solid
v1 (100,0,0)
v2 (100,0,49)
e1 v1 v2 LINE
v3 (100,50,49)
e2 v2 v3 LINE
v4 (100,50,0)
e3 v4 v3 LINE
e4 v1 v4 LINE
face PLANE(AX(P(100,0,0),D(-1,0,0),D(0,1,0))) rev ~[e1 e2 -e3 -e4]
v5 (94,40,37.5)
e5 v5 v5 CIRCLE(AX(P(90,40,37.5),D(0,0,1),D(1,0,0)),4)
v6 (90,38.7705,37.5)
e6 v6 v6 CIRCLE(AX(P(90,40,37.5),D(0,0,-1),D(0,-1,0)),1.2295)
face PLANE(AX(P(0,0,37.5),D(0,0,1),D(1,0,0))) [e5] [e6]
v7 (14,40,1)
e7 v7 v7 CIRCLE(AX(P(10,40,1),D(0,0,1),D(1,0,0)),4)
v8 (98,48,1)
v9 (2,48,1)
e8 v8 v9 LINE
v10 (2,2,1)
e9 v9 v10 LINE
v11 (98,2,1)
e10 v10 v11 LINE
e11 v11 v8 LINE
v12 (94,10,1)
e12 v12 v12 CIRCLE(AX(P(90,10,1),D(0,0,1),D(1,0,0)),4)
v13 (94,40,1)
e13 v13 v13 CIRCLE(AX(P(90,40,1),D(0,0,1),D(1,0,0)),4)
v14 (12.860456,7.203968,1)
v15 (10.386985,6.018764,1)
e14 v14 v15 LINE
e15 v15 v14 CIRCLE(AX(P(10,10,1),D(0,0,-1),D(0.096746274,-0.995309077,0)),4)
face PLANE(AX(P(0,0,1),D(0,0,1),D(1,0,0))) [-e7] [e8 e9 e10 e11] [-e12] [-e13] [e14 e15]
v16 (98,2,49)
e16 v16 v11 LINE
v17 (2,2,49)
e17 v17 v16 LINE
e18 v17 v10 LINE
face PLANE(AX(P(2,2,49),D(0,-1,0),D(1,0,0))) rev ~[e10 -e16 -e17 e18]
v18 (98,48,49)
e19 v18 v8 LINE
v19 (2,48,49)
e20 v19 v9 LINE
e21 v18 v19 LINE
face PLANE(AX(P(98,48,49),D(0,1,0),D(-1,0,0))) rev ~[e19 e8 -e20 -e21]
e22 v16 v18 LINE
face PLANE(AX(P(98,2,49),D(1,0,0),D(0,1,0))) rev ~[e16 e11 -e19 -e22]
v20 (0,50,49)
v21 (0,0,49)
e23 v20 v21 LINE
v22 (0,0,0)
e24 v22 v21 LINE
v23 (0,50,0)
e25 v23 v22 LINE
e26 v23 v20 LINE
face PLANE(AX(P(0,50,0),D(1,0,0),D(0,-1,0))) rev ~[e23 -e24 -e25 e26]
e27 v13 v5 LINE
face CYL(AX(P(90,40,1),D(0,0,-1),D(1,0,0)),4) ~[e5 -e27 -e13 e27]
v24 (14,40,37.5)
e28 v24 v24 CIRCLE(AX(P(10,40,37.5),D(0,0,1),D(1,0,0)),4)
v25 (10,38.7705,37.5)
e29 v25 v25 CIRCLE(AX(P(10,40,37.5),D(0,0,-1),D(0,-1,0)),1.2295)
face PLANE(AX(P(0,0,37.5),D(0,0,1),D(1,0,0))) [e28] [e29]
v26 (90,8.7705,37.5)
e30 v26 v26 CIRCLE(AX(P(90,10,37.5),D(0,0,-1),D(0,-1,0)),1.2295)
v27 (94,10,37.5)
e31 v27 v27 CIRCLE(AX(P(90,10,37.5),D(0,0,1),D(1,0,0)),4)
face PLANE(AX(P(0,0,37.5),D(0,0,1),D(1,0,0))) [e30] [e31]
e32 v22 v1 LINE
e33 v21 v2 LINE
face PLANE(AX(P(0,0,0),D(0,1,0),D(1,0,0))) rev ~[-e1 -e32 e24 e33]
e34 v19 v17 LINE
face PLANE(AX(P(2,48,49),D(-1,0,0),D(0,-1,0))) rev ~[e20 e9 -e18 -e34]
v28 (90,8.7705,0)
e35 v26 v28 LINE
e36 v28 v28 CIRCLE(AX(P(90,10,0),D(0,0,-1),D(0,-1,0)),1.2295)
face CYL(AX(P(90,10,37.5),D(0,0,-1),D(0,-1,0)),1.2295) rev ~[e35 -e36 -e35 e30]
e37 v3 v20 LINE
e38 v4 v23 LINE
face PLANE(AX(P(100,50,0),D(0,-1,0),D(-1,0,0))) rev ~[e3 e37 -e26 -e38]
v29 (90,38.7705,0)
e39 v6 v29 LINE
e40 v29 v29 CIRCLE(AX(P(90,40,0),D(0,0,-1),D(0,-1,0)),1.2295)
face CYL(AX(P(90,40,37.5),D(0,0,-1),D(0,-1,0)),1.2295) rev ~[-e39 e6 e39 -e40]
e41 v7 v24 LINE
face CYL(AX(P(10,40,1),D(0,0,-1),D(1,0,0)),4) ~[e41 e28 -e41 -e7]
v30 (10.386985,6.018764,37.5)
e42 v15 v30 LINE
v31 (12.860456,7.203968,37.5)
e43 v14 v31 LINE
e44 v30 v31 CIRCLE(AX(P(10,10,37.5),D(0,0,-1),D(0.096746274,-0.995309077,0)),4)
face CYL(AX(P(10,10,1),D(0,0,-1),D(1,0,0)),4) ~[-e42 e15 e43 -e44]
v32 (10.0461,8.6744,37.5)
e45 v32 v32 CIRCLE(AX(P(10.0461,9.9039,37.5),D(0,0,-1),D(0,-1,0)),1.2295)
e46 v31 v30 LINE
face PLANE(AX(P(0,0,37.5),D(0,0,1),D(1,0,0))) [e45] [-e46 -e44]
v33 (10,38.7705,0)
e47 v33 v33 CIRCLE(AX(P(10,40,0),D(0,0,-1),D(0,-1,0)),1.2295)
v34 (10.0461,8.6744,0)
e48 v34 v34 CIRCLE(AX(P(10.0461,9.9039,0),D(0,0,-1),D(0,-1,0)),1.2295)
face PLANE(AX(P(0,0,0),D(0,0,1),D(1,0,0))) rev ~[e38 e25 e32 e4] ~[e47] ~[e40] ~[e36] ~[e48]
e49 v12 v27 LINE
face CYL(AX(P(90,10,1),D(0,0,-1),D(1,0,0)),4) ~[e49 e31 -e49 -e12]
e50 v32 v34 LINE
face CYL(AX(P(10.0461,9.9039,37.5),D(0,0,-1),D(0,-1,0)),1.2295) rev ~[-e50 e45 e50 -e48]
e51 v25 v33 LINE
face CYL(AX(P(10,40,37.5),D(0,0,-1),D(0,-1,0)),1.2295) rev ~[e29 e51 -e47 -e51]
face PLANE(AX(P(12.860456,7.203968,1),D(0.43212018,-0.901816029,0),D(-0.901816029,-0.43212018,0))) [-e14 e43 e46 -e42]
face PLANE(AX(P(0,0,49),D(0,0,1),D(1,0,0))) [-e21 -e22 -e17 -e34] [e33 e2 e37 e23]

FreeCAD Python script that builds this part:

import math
import FreeCAD as App
import Part
import Sketcher

V = App.Vector


def add_polygon(sketch, points):
    """Adds a closed chain of lines whose ends are joined by coincident constraints."""
    first, n = sketch.GeometryCount, len(points)
    for a, b in zip(points, points[1:] + points[:1]):
        sketch.addGeometry(Part.LineSegment(App.Vector(*a, 0), App.Vector(*b, 0)), False)
    for i in range(n):
        sketch.addConstraint(Sketcher.Constraint("Coincident", first + i, 2, first + (i + 1) % n, 1))

doc = App.newDocument("Part")
body = doc.addObject("PartDesign::Body", "Body")

# Sketch on XY plane
sketch1 = body.newObject("Sketcher::SketchObject", "Sketch")
sketch1.AttachmentSupport = (doc.getObject("XY_Plane"), [""])
sketch1.MapMode = "FlatFace"
add_polygon(sketch1, [(0, 50), (0, 0), (100, 0), (100, 50)])  # lines 0-3
sketch1.addConstraint([
    Sketcher.Constraint("Vertical", 0),
    Sketcher.Constraint("Horizontal", 1),
    Sketcher.Constraint("Vertical", 2),
    Sketcher.Constraint("Horizontal", 3),
    Sketcher.Constraint("Coincident", 0, 2, -1, 1),
    Sketcher.Constraint("DistanceX", 1, 1, 1, 2, 100.0),
    Sketcher.Constraint("DistanceY", 0, 2, 0, 1, 50.0),
])
pad1 = body.newObject("PartDesign::Pad", "Pad")
pad1.Profile = sketch1
pad1.Length = 49

# Sketch on XY plane
sketch2 = body.newObject("Sketcher::SketchObject", "Sketch001")
sketch2.AttachmentSupport = (doc.getObject("XY_Plane"), [""])
sketch2.MapMode = "FlatFace"
sketch2.AttachmentOffset = App.Placement(V(0, 0, 49), App.Rotation())
add_polygon(sketch2, [(2, 48), (2, 2), (98, 2), (98, 48)])  # lines 0-3
sketch2.addConstraint([
    Sketcher.Constraint("Vertical", 0),
    Sketcher.Constraint("Horizontal", 1),
    Sketcher.Constraint("Vertical", 2),
    Sketcher.Constraint("Horizontal", 3),
    Sketcher.Constraint("DistanceX", 1, 1, 1, 2, 96.0),
    Sketcher.Constraint("DistanceY", 0, 2, 0, 1, 46.0),
    Sketcher.Constraint("DistanceX", -1, 1, 0, 2, 2.0),
    Sketcher.Constraint("DistanceY", -1, 1, 0, 2, 2.0),
])
pocket1 = body.newObject("PartDesign::Pocket", "Pocket")
pocket1.Profile = sketch2
pocket1.Length = 48

# Sketch on XY plane
sketch3 = body.newObject("Sketcher::SketchObject", "Sketch002")
sketch3.AttachmentSupport = (doc.getObject("XY_Plane"), [""])
sketch3.MapMode = "FlatFace"
sketch3.AttachmentOffset = App.Placement(V(0, 0, 1), App.Rotation())
sketch3.addGeometry([
    Part.ArcOfCircle(Part.Circle(V(10, 10, 0), V(0, 0, 1), 4), math.radians(-44), math.radians(276)),  # 0
    Part.LineSegment(V(10.4, 6, 0), V(12.9, 7.2, 0)),  # 1
    Part.Circle(V(10, 40, 0), V(0, 0, 1), 4),  # 2
    Part.Circle(V(90, 10, 0), V(0, 0, 1), 4),  # 3
    Part.Circle(V(90, 40, 0), V(0, 0, 1), 4),  # 4
], False)
sketch3.addConstraint([
    Sketcher.Constraint("Coincident", 0, 1, 1, 2),
    Sketcher.Constraint("Coincident", 1, 1, 0, 2),
    Sketcher.Constraint("Equal", 0, 2),
    Sketcher.Constraint("Equal", 2, 3),
    Sketcher.Constraint("Equal", 3, 4),
    Sketcher.Constraint("Horizontal", 0, 3, 3, 3),
    Sketcher.Constraint("Horizontal", 2, 3, 4, 3),
    Sketcher.Constraint("Vertical", 0, 3, 2, 3),
    Sketcher.Constraint("Vertical", 3, 3, 4, 3),
    Sketcher.Constraint("Diameter", 2, 8.0),
    Sketcher.Constraint("DistanceY", -1, 1, 2, 3, 40.0),
    Sketcher.Constraint("DistanceY", 0, 3, 2, 3, 30.0),
    Sketcher.Constraint("DistanceX", 0, 3, 3, 3, 80.0),
    Sketcher.Constraint("DistanceX", -1, 1, 0, 3, 10.0),
    Sketcher.Constraint("DistanceY", -1, 1, 0, 1, 7.204),
    Sketcher.Constraint("DistanceX", -1, 1, 1, 1, 10.387),
])
pad2 = body.newObject("PartDesign::Pad", "Pad001")
pad2.Profile = sketch3
pad2.Length = 36.5

# Sketch on XY plane
sketch4 = body.newObject("Sketcher::SketchObject", "Sketch003")
sketch4.AttachmentSupport = (doc.getObject("XY_Plane"), [""])
sketch4.MapMode = "FlatFace"
sketch4.AttachmentOffset = App.Placement(V(0, 0, 37.5), App.Rotation())
sketch4.addGeometry(Part.Circle(V(10, 9.9, 0), V(0, 0, 1), 1.2), False)
sketch4.addConstraint([
    Sketcher.Constraint("Diameter", 0, 2.459),
    Sketcher.Constraint("DistanceX", -1, 1, 0, 3, 10.046),
    Sketcher.Constraint("DistanceY", -1, 1, 0, 3, 9.904),
])
doc.recompute()
hole = body.newObject("PartDesign::Hole", "Hole")
hole.Profile = sketch4
hole.ThreadType = "None"
hole.Diameter = 2.459
hole.DepthType = "ThroughAll"

# Sketch on XY plane
sketch5 = body.newObject("Sketcher::SketchObject", "Sketch004")
sketch5.AttachmentSupport = (doc.getObject("XY_Plane"), [""])
sketch5.MapMode = "FlatFace"
sketch5.AttachmentOffset = App.Placement(V(0, 0, 37.5), App.Rotation())
sketch5.addGeometry(Part.Circle(V(90, 40, 0), V(0, 0, 1), 1.2), False)
sketch5.addConstraint([
    Sketcher.Constraint("Diameter", 0, 2.459),
    Sketcher.Constraint("DistanceX", -1, 1, 0, 3, 90.0),
    Sketcher.Constraint("DistanceY", -1, 1, 0, 3, 40.0),
])
doc.recompute()
hole2 = body.newObject("PartDesign::Hole", "Hole001")
hole2.Profile = sketch5
hole2.ThreadType = "None"
hole2.Diameter = 2.459
hole2.DepthType = "ThroughAll"

# Sketch on XY plane
sketch6 = body.newObject("Sketcher::SketchObject", "Sketch005")
sketch6.AttachmentSupport = (doc.getObject("XY_Plane"), [""])
sketch6.MapMode = "FlatFace"
sketch6.AttachmentOffset = App.Placement(V(0, 0, 37.5), App.Rotation())
sketch6.addGeometry(Part.Circle(V(90, 10, 0), V(0, 0, 1), 1.2), False)
sketch6.addConstraint([
    Sketcher.Constraint("Diameter", 0, 2.459),
    Sketcher.Constraint("DistanceX", -1, 1, 0, 3, 90.0),
    Sketcher.Constraint("DistanceY", -1, 1, 0, 3, 10.0),
])
doc.recompute()
hole3 = body.newObject("PartDesign::Hole", "Hole002")
hole3.Profile = sketch6
hole3.ThreadType = "None"
hole3.Diameter = 2.459
hole3.DepthType = "ThroughAll"

# Sketch on XY plane
sketch7 = body.newObject("Sketcher::SketchObject", "Sketch006")
sketch7.AttachmentSupport = (doc.getObject("XY_Plane"), [""])
sketch7.MapMode = "FlatFace"
sketch7.AttachmentOffset = App.Placement(V(0, 0, 37.5), App.Rotation())
sketch7.addGeometry(Part.Circle(V(10, 40, 0), V(0, 0, 1), 1.2), False)
sketch7.addConstraint([
    Sketcher.Constraint("Diameter", 0, 2.459),
    Sketcher.Constraint("DistanceX", -1, 1, 0, 3, 10.0),
    Sketcher.Constraint("DistanceY", -1, 1, 0, 3, 40.0),
])
doc.recompute()
hole4 = body.newObject("PartDesign::Hole", "Hole003")
hole4.Profile = sketch7
hole4.ThreadType = "None"
hole4.Diameter = 2.459
hole4.DepthType = "ThroughAll"

doc.recompute()
